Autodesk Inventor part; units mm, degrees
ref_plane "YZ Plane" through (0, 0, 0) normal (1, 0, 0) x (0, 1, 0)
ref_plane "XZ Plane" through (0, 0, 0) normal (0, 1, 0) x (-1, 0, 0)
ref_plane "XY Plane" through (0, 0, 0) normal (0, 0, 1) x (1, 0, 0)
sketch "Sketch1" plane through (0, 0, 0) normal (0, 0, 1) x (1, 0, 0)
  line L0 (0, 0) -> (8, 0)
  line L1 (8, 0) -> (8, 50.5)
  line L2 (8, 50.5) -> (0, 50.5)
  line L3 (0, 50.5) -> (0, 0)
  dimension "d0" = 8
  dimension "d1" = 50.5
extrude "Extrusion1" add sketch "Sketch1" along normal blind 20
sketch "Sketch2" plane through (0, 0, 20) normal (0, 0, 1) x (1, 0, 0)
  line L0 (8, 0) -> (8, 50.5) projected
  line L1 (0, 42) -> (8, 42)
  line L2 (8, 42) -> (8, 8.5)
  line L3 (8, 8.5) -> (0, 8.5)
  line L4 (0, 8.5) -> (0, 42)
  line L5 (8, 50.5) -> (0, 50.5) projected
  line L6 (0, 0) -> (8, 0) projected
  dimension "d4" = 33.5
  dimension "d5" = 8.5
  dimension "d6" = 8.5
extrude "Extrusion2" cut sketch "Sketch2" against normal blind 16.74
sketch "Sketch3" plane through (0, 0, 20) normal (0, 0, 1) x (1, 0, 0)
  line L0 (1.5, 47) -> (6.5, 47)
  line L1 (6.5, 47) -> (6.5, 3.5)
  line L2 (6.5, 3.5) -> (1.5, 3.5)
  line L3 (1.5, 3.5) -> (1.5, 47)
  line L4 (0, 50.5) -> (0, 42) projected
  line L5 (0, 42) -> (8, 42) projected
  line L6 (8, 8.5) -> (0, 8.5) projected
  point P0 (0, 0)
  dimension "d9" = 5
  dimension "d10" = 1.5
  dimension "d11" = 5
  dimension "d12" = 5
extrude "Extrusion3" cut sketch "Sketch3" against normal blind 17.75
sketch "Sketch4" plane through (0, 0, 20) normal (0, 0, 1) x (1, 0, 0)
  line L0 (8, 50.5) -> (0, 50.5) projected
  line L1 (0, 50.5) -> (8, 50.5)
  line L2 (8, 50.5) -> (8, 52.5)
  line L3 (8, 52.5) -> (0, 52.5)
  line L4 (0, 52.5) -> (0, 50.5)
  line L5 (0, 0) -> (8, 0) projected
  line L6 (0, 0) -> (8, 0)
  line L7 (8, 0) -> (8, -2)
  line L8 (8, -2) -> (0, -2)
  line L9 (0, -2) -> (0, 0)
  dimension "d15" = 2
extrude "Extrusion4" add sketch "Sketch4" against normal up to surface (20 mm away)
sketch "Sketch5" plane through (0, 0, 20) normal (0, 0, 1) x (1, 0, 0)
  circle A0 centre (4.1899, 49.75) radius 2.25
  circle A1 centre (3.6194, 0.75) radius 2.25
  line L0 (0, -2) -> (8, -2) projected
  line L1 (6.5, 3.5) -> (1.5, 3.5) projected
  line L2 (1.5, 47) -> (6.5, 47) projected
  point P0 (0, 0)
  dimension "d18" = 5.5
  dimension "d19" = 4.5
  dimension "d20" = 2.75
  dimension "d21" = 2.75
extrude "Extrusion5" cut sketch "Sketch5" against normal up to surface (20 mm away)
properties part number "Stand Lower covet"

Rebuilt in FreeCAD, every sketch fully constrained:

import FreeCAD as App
import Part
import Sketcher
from FreeCAD import Vector

doc = App.newDocument("Part")
params = doc.addObject("Spreadsheet::Sheet", "Params")
for row, (alias, value) in enumerate([
    ("sketch1_width", "8 mm"),
    ("sketch1_height", "50.5 mm"),
    ("pad1_length", "20 mm"),
    ("sketch2_height", "33.5 mm"),
    ("sketch2_width", "8 mm"),
    ("pocket1_length", "16.74 mm"),
    ("sketch3_width", "5 mm"),
    ("sketch3_height", "43.5 mm"),
    ("pocket2_length", "17.75 mm"),
    ("sketch4_height", "2 mm"),
    ("sketch4_width", "8 mm"),
    ("pad2_length", "20 mm"),
    ("sketch5_diameter", "4.5 mm"),
    ("pocket3_length", "20 mm"),
], start=1):
    params.set(f"A{row}", alias)
    params.set(f"B{row}", "=" + value)
    params.setAlias(f"B{row}", alias)

body = doc.addObject("PartDesign::Body", "Body")

# Sketch on XY plane
sketch1 = doc.addObject("Sketcher::SketchObject", "Sketch")
body.addObject(sketch1)
sketch1.AttachmentSupport = (doc.XY_Plane, [""])
sketch1.MapMode = "FlatFace"
sketch1.addGeometry([
    Part.LineSegment(Vector(0, 50, 0), Vector(0, 0, 0)),
    Part.LineSegment(Vector(0, 0, 0), Vector(8, 0, 0)),
    Part.LineSegment(Vector(8, 0, 0), Vector(8, 50, 0)),
    Part.LineSegment(Vector(8, 50, 0), Vector(0, 50, 0)),
], False)
sketch1.addConstraint([
    Sketcher.Constraint("Coincident", 0, 2, 1, 1),
    Sketcher.Constraint("Coincident", 1, 2, 2, 1),
    Sketcher.Constraint("Coincident", 2, 2, 3, 1),
    Sketcher.Constraint("Coincident", 3, 2, 0, 1),
    Sketcher.Constraint("Vertical", 0),
    Sketcher.Constraint("Horizontal", 1),
    Sketcher.Constraint("Vertical", 2),
    Sketcher.Constraint("Horizontal", 3),
    Sketcher.Constraint("Coincident", 0, 2, -1, 1),
    Sketcher.Constraint("DistanceX", 1, 1, 1, 2, 8.0),
    Sketcher.Constraint("DistanceY", 0, 2, 0, 1, 50.5),
])
sketch1.setExpression("Constraints[9]", "Params.sketch1_width")
sketch1.setExpression("Constraints[10]", "Params.sketch1_height")
pad1 = doc.addObject("PartDesign::Pad", "Pad")
body.addObject(pad1)
pad1.Profile = sketch1
pad1.setExpression("Length", "Params.pad1_length")

# Sketch on XY plane
sketch2 = doc.addObject("Sketcher::SketchObject", "Sketch001")
body.addObject(sketch2)
sketch2.AttachmentSupport = (doc.XY_Plane, [""])
sketch2.MapMode = "FlatFace"
sketch2.AttachmentOffset = App.Placement(Vector(0, 0, 20), App.Rotation())
sketch2.addGeometry([
    Part.LineSegment(Vector(0, 8, 0), Vector(8, 8, 0)),
    Part.LineSegment(Vector(8, 8, 0), Vector(8, 42, 0)),
    Part.LineSegment(Vector(8, 42, 0), Vector(0, 42, 0)),
    Part.LineSegment(Vector(0, 42, 0), Vector(0, 8, 0)),
], False)
sketch2.addConstraint([
    Sketcher.Constraint("Coincident", 0, 2, 1, 1),
    Sketcher.Constraint("Coincident", 1, 2, 2, 1),
    Sketcher.Constraint("Coincident", 2, 2, 3, 1),
    Sketcher.Constraint("Coincident", 3, 2, 0, 1),
    Sketcher.Constraint("Horizontal", 0),
    Sketcher.Constraint("Vertical", 1),
    Sketcher.Constraint("Horizontal", 2),
    Sketcher.Constraint("Vertical", 3),
    Sketcher.Constraint("PointOnObject", 2, 2, -2),
    Sketcher.Constraint("DistanceY", 1, 1, 1, 2, 33.5),
    Sketcher.Constraint("DistanceY", -1, 1, 0, 2, 8.5),
    Sketcher.Constraint("DistanceX", 0, 1, 0, 2, 8.0),
])
sketch2.setExpression("Constraints[9]", "Params.sketch2_height")
sketch2.setExpression("Constraints[11]", "Params.sketch2_width")
pocket1 = doc.addObject("PartDesign::Pocket", "Pocket")
body.addObject(pocket1)
pocket1.Profile = sketch2
pocket1.setExpression("Length", "Params.pocket1_length")

# Sketch on XY plane
sketch3 = doc.addObject("Sketcher::SketchObject", "Sketch002")
body.addObject(sketch3)
sketch3.AttachmentSupport = (doc.XY_Plane, [""])
sketch3.MapMode = "FlatFace"
sketch3.AttachmentOffset = App.Placement(Vector(0, 0, 20), App.Rotation())
sketch3.addGeometry([
    Part.LineSegment(Vector(6, 47, 0), Vector(2, 47, 0)),
    Part.LineSegment(Vector(2, 47, 0), Vector(2, 4, 0)),
    Part.LineSegment(Vector(2, 4, 0), Vector(6, 4, 0)),
    Part.LineSegment(Vector(6, 4, 0), Vector(6, 47, 0)),
], False)
sketch3.addConstraint([
    Sketcher.Constraint("Coincident", 0, 2, 1, 1),
    Sketcher.Constraint("Coincident", 1, 2, 2, 1),
    Sketcher.Constraint("Coincident", 2, 2, 3, 1),
    Sketcher.Constraint("Coincident", 3, 2, 0, 1),
    Sketcher.Constraint("Horizontal", 0),
    Sketcher.Constraint("Vertical", 1),
    Sketcher.Constraint("Horizontal", 2),
    Sketcher.Constraint("Vertical", 3),
    Sketcher.Constraint("DistanceX", 0, 2, 0, 1, 5.0),
    Sketcher.Constraint("DistanceX", -1, 1, 0, 2, 1.5),
    Sketcher.Constraint("DistanceY", 1, 2, 1, 1, 43.5),
    Sketcher.Constraint("DistanceY", -1, 1, 0, 2, 47.0),
])
sketch3.setExpression("Constraints[8]", "Params.sketch3_width")
sketch3.setExpression("Constraints[10]", "Params.sketch3_height")
pocket2 = doc.addObject("PartDesign::Pocket", "Pocket001")
body.addObject(pocket2)
pocket2.Profile = sketch3
pocket2.setExpression("Length", "Params.pocket2_length")

# Sketch on XY plane
sketch4 = doc.addObject("Sketcher::SketchObject", "Sketch003")
body.addObject(sketch4)
sketch4.AttachmentSupport = (doc.XY_Plane, [""])
sketch4.MapMode = "FlatFace"
sketch4.AttachmentOffset = App.Placement(Vector(0, 0, 20), App.Rotation())
sketch4.addGeometry([
    Part.LineSegment(Vector(0, 50.5, 0), Vector(8, 50.5, 0)),  # 0
    Part.LineSegment(Vector(8, 50.5, 0), Vector(8, 52.5, 0)),  # 1
    Part.LineSegment(Vector(8, 52.5, 0), Vector(0, 52.5, 0)),  # 2
    Part.LineSegment(Vector(0, 52.5, 0), Vector(0, 50.5, 0)),  # 3
    Part.LineSegment(Vector(8, 0, 0), Vector(0, 0, 0)),  # 4
    Part.LineSegment(Vector(0, 0, 0), Vector(0, -2, 0)),  # 5
    Part.LineSegment(Vector(0, -2, 0), Vector(8, -2, 0)),  # 6
    Part.LineSegment(Vector(8, -2, 0), Vector(8, 0, 0)),  # 7
], False)
sketch4.addConstraint([
    Sketcher.Constraint("Coincident", 0, 2, 1, 1),
    Sketcher.Constraint("Coincident", 1, 2, 2, 1),
    Sketcher.Constraint("Coincident", 2, 2, 3, 1),
    Sketcher.Constraint("Coincident", 3, 2, 0, 1),
    Sketcher.Constraint("Coincident", 4, 2, 5, 1),
    Sketcher.Constraint("Coincident", 5, 2, 6, 1),
    Sketcher.Constraint("Coincident", 6, 2, 7, 1),
    Sketcher.Constraint("Coincident", 7, 2, 4, 1),
    Sketcher.Constraint("Horizontal", 0),
    Sketcher.Constraint("Vertical", 1),
    Sketcher.Constraint("Horizontal", 2),
    Sketcher.Constraint("Vertical", 3),
    Sketcher.Constraint("Horizontal", 4),
    Sketcher.Constraint("Vertical", 5),
    Sketcher.Constraint("Horizontal", 6),
    Sketcher.Constraint("Vertical", 7),
    Sketcher.Constraint("Coincident", 4, 2, -1, 1),
    Sketcher.Constraint("PointOnObject", 2, 2, -2),
    Sketcher.Constraint("Vertical", 1, 2, 6, 2),
    Sketcher.Constraint("Equal", 3, 5),
    Sketcher.Constraint("DistanceY", 1, 1, 1, 2, 2.0),
    Sketcher.Constraint("DistanceX", 0, 1, 0, 2, 8.0),
    Sketcher.Constraint("DistanceY", -1, 1, 0, 2, 50.5),
])
sketch4.setExpression("Constraints[20]", "Params.sketch4_height")
sketch4.setExpression("Constraints[21]", "Params.sketch4_width")
pad2 = doc.addObject("PartDesign::Pad", "Pad001")
body.addObject(pad2)
pad2.Profile = sketch4
pad2.setExpression("Length", "Params.pad2_length")
pad2.Reversed = True

# Sketch on XY plane
sketch5 = doc.addObject("Sketcher::SketchObject", "Sketch004")
body.addObject(sketch5)
sketch5.AttachmentSupport = (doc.XY_Plane, [""])
sketch5.MapMode = "FlatFace"
sketch5.AttachmentOffset = App.Placement(Vector(0, 0, 20), App.Rotation())
sketch5.addGeometry([
    Part.Circle(Vector(4.2, 49.8, 0), Vector(0, 0, 1), 2.2),
    Part.Circle(Vector(3.6, 0.8, 0), Vector(0, 0, 1), 2.2),
], False)
sketch5.addConstraint([
    Sketcher.Constraint("Equal", 0, 1),
    Sketcher.Constraint("Diameter", 0, 4.5),
    Sketcher.Constraint("DistanceY", 1, 3, 0, 3, 49.0),
    Sketcher.Constraint("DistanceX", -1, 1, 0, 3, 4.19),
    Sketcher.Constraint("DistanceY", -1, 1, 0, 3, 49.75),
    Sketcher.Constraint("DistanceX", -1, 1, 1, 3, 3.6194),
])
sketch5.setExpression("Constraints[1]", "Params.sketch5_diameter")
pocket3 = doc.addObject("PartDesign::Pocket", "Pocket002")
body.addObject(pocket3)
pocket3.Profile = sketch5
pocket3.setExpression("Length", "Params.pocket3_length")

doc.recompute()
